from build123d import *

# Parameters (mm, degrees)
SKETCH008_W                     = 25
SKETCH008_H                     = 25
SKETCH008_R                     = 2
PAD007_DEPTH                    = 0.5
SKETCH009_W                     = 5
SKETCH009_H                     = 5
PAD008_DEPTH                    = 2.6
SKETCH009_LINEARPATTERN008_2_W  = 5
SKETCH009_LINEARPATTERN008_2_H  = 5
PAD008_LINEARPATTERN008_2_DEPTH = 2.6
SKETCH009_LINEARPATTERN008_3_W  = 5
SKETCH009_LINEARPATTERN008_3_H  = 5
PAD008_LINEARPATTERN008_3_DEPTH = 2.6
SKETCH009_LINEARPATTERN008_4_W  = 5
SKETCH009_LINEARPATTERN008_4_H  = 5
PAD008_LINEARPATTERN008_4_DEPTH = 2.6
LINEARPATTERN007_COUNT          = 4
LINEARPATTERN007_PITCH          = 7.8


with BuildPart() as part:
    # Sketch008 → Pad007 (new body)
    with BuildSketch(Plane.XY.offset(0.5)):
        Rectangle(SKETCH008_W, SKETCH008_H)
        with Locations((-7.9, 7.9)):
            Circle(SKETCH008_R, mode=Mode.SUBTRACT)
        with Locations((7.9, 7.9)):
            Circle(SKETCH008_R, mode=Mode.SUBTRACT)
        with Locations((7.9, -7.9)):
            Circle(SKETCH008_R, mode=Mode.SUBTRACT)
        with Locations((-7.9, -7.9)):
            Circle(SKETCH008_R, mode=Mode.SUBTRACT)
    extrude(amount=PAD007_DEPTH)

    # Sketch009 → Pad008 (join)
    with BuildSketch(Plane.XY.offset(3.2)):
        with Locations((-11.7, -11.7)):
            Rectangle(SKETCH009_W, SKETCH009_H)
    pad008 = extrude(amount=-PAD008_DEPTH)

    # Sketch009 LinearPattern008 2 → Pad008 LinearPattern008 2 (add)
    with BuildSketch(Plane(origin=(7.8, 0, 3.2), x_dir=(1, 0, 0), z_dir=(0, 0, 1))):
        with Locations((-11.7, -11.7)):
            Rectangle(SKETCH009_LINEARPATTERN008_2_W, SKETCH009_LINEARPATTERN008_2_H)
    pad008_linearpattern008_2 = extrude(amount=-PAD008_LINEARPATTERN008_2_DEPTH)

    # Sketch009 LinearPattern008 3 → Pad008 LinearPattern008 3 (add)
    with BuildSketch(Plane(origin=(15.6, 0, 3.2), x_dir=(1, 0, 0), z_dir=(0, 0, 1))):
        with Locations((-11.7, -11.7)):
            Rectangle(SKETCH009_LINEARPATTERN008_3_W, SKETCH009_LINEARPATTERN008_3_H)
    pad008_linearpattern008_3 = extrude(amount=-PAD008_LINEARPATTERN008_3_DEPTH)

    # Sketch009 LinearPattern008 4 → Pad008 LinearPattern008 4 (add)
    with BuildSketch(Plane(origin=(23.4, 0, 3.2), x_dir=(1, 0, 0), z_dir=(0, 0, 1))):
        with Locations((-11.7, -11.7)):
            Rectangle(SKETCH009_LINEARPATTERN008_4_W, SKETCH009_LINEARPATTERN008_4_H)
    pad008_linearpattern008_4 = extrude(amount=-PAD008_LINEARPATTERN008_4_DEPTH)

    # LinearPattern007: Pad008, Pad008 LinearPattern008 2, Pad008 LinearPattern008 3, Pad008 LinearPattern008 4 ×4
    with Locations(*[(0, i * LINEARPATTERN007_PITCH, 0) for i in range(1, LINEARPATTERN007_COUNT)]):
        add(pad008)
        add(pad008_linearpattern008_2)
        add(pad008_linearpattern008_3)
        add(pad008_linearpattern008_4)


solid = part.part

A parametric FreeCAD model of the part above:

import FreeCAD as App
import Part
import Sketcher

doc = App.newDocument("Part")
body = doc.addObject("PartDesign::Body", "Body")

# Sketch on XY plane
sketch1 = doc.addObject("Sketcher::SketchObject", "Sketch")
body.addObject(sketch1)
sketch1.AttachmentSupport = (doc.XY_Plane, [""])
sketch1.MapMode = "FlatFace"
sketch1.AttachmentOffset = App.Placement(App.Vector(0, 0, 0.5), App.Rotation())
sketch1.addGeometry([
    Part.LineSegment(App.Vector(-12.5, 12.5, 0), App.Vector(-12.5, -12.5, 0)),  # 0
    Part.LineSegment(App.Vector(-12.5, -12.5, 0), App.Vector(12.5, -12.5, 0)),  # 1
    Part.LineSegment(App.Vector(12.5, -12.5, 0), App.Vector(12.5, 12.5, 0)),  # 2
    Part.LineSegment(App.Vector(12.5, 12.5, 0), App.Vector(-12.5, 12.5, 0)),  # 3
    Part.Circle(App.Vector(-7.9, -7.9, 0), App.Vector(0, 0, 1), 2),  # 4
    Part.Circle(App.Vector(7.9, -7.9, 0), App.Vector(0, 0, 1), 2),  # 5
    Part.Circle(App.Vector(-7.9, 7.9, 0), App.Vector(0, 0, 1), 2),  # 6
    Part.Circle(App.Vector(7.9, 7.9, 0), App.Vector(0, 0, 1), 2),  # 7
], False)
sketch1.addConstraint([
    Sketcher.Constraint("Coincident", 0, 2, 1, 1),
    Sketcher.Constraint("Coincident", 1, 2, 2, 1),
    Sketcher.Constraint("Coincident", 2, 2, 3, 1),
    Sketcher.Constraint("Coincident", 3, 2, 0, 1),
    Sketcher.Constraint("Vertical", 0),
    Sketcher.Constraint("Horizontal", 1),
    Sketcher.Constraint("Vertical", 2),
    Sketcher.Constraint("Horizontal", 3),
    Sketcher.Constraint("Equal", 4, 5),
    Sketcher.Constraint("Equal", 5, 6),
    Sketcher.Constraint("Equal", 6, 7),
    Sketcher.Constraint("Symmetric", 5, 3, 6, 3, -1, 1),
    Sketcher.Constraint("Symmetric", 4, 3, 7, 3, -1, 1),
    Sketcher.Constraint("Symmetric", 0, 2, 2, 2, -1, 1),
    Sketcher.Constraint("Symmetric", 4, 3, 5, 3, -2),
    Sketcher.Constraint("Equal", 3, 0),
    Sketcher.Constraint("Diameter", 4, 4.0),
    Sketcher.Constraint("DistanceX", 1, 1, 1, 2, 25.0),
    Sketcher.Constraint("DistanceX", 4, 3, -1, 1, 7.9),
    Sketcher.Constraint("DistanceY", 4, 3, -1, 1, 7.9),
])
pad1 = doc.addObject("PartDesign::Pad", "Pad")
body.addObject(pad1)
pad1.Profile = sketch1
pad1.Length = 0.5

# Sketch on XY plane
sketch2 = doc.addObject("Sketcher::SketchObject", "Sketch001")
body.addObject(sketch2)
sketch2.AttachmentSupport = (doc.XY_Plane, [""])
sketch2.MapMode = "FlatFace"
sketch2.AttachmentOffset = App.Placement(App.Vector(0, 0, 3.2), App.Rotation())
sketch2.addGeometry([
    Part.LineSegment(App.Vector(-14, -9, 0), App.Vector(-14, -14, 0)),
    Part.LineSegment(App.Vector(-14, -14, 0), App.Vector(-9, -14, 0)),
    Part.LineSegment(App.Vector(-9, -14, 0), App.Vector(-9, -9, 0)),
    Part.LineSegment(App.Vector(-9, -9, 0), App.Vector(-14, -9, 0)),
], False)
sketch2.addConstraint([
    Sketcher.Constraint("Coincident", 0, 2, 1, 1),
    Sketcher.Constraint("Coincident", 1, 2, 2, 1),
    Sketcher.Constraint("Coincident", 2, 2, 3, 1),
    Sketcher.Constraint("Coincident", 3, 2, 0, 1),
    Sketcher.Constraint("Vertical", 0),
    Sketcher.Constraint("Horizontal", 1),
    Sketcher.Constraint("Vertical", 2),
    Sketcher.Constraint("Horizontal", 3),
    Sketcher.Constraint("Equal", 3, 0),
    Sketcher.Constraint("DistanceX", 1, 1, 1, 2, 5.0),
    Sketcher.Constraint("DistanceX", 0, 2, -1, 1, 14.2),
    Sketcher.Constraint("DistanceY", 0, 2, -1, 1, 14.2),
])
pad2 = doc.addObject("PartDesign::Pad", "Pad001")
body.addObject(pad2)
pad2.Profile = sketch2
pad2.Length = 2.6
pad2.Reversed = True

# Sketch on XY plane
sketch3 = doc.addObject("Sketcher::SketchObject", "Sketch002")
body.addObject(sketch3)
sketch3.AttachmentSupport = (doc.XY_Plane, [""])
sketch3.MapMode = "FlatFace"
sketch3.AttachmentOffset = App.Placement(App.Vector(0, 0, 3.2), App.Rotation())
sketch3.addGeometry([
    Part.LineSegment(App.Vector(-6, -9, 0), App.Vector(-6, -14, 0)),
    Part.LineSegment(App.Vector(-6, -14, 0), App.Vector(-1, -14, 0)),
    Part.LineSegment(App.Vector(-1, -14, 0), App.Vector(-1, -9, 0)),
    Part.LineSegment(App.Vector(-1, -9, 0), App.Vector(-6, -9, 0)),
], False)
sketch3.addConstraint([
    Sketcher.Constraint("Coincident", 0, 2, 1, 1),
    Sketcher.Constraint("Coincident", 1, 2, 2, 1),
    Sketcher.Constraint("Coincident", 2, 2, 3, 1),
    Sketcher.Constraint("Coincident", 3, 2, 0, 1),
    Sketcher.Constraint("Vertical", 0),
    Sketcher.Constraint("Horizontal", 1),
    Sketcher.Constraint("Vertical", 2),
    Sketcher.Constraint("Horizontal", 3),
    Sketcher.Constraint("Equal", 3, 0),
    Sketcher.Constraint("DistanceX", 1, 1, 1, 2, 5.0),
    Sketcher.Constraint("DistanceX", 0, 2, -1, 1, 6.4),
    Sketcher.Constraint("DistanceY", 0, 2, -1, 1, 14.2),
])
pad3 = doc.addObject("PartDesign::Pad", "Pad002")
body.addObject(pad3)
pad3.Profile = sketch3
pad3.Length = 2.6
pad3.Reversed = True

# Sketch on XY plane
sketch4 = doc.addObject("Sketcher::SketchObject", "Sketch003")
body.addObject(sketch4)
sketch4.AttachmentSupport = (doc.XY_Plane, [""])
sketch4.MapMode = "FlatFace"
sketch4.AttachmentOffset = App.Placement(App.Vector(0, 0, 3.2), App.Rotation())
sketch4.addGeometry([
    Part.LineSegment(App.Vector(1, -9, 0), App.Vector(1, -14, 0)),
    Part.LineSegment(App.Vector(1, -14, 0), App.Vector(6, -14, 0)),
    Part.LineSegment(App.Vector(6, -14, 0), App.Vector(6, -9, 0)),
    Part.LineSegment(App.Vector(6, -9, 0), App.Vector(1, -9, 0)),
], False)
sketch4.addConstraint([
    Sketcher.Constraint("Coincident", 0, 2, 1, 1),
    Sketcher.Constraint("Coincident", 1, 2, 2, 1),
    Sketcher.Constraint("Coincident", 2, 2, 3, 1),
    Sketcher.Constraint("Coincident", 3, 2, 0, 1),
    Sketcher.Constraint("Vertical", 0),
    Sketcher.Constraint("Horizontal", 1),
    Sketcher.Constraint("Vertical", 2),
    Sketcher.Constraint("Horizontal", 3),
    Sketcher.Constraint("Equal", 3, 0),
    Sketcher.Constraint("DistanceX", 1, 1, 1, 2, 5.0),
    Sketcher.Constraint("DistanceX", -1, 1, 0, 2, 1.4),
    Sketcher.Constraint("DistanceY", 0, 2, -1, 1, 14.2),
])
pad4 = doc.addObject("PartDesign::Pad", "Pad003")
body.addObject(pad4)
pad4.Profile = sketch4
pad4.Length = 2.6
pad4.Reversed = True

# Sketch on XY plane
sketch5 = doc.addObject("Sketcher::SketchObject", "Sketch004")
body.addObject(sketch5)
sketch5.AttachmentSupport = (doc.XY_Plane, [""])
sketch5.MapMode = "FlatFace"
sketch5.AttachmentOffset = App.Placement(App.Vector(0, 0, 3.2), App.Rotation())
sketch5.addGeometry([
    Part.LineSegment(App.Vector(9, -9, 0), App.Vector(9, -14, 0)),
    Part.LineSegment(App.Vector(9, -14, 0), App.Vector(14, -14, 0)),
    Part.LineSegment(App.Vector(14, -14, 0), App.Vector(14, -9, 0)),
    Part.LineSegment(App.Vector(14, -9, 0), App.Vector(9, -9, 0)),
], False)
sketch5.addConstraint([
    Sketcher.Constraint("Coincident", 0, 2, 1, 1),
    Sketcher.Constraint("Coincident", 1, 2, 2, 1),
    Sketcher.Constraint("Coincident", 2, 2, 3, 1),
    Sketcher.Constraint("Coincident", 3, 2, 0, 1),
    Sketcher.Constraint("Vertical", 0),
    Sketcher.Constraint("Horizontal", 1),
    Sketcher.Constraint("Vertical", 2),
    Sketcher.Constraint("Horizontal", 3),
    Sketcher.Constraint("Equal", 3, 0),
    Sketcher.Constraint("DistanceX", 1, 1, 1, 2, 5.0),
    Sketcher.Constraint("DistanceX", -1, 1, 0, 2, 9.2),
    Sketcher.Constraint("DistanceY", 0, 2, -1, 1, 14.2),
])
pad5 = doc.addObject("PartDesign::Pad", "Pad004")
body.addObject(pad5)
pad5.Profile = sketch5
pad5.Length = 2.6
pad5.Reversed = True
doc.recompute()

linearpattern = doc.addObject("PartDesign::LinearPattern", "LinearPattern")
body.addObject(linearpattern)
linearpattern.Originals = [pad2, pad3, pad4, pad5]
linearpattern.Direction = (doc.Y_Axis, [""])
linearpattern.Mode = "offset"
linearpattern.Offset = 7.8
linearpattern.Occurrences = 4
body.Tip = linearpattern

doc.recompute()
